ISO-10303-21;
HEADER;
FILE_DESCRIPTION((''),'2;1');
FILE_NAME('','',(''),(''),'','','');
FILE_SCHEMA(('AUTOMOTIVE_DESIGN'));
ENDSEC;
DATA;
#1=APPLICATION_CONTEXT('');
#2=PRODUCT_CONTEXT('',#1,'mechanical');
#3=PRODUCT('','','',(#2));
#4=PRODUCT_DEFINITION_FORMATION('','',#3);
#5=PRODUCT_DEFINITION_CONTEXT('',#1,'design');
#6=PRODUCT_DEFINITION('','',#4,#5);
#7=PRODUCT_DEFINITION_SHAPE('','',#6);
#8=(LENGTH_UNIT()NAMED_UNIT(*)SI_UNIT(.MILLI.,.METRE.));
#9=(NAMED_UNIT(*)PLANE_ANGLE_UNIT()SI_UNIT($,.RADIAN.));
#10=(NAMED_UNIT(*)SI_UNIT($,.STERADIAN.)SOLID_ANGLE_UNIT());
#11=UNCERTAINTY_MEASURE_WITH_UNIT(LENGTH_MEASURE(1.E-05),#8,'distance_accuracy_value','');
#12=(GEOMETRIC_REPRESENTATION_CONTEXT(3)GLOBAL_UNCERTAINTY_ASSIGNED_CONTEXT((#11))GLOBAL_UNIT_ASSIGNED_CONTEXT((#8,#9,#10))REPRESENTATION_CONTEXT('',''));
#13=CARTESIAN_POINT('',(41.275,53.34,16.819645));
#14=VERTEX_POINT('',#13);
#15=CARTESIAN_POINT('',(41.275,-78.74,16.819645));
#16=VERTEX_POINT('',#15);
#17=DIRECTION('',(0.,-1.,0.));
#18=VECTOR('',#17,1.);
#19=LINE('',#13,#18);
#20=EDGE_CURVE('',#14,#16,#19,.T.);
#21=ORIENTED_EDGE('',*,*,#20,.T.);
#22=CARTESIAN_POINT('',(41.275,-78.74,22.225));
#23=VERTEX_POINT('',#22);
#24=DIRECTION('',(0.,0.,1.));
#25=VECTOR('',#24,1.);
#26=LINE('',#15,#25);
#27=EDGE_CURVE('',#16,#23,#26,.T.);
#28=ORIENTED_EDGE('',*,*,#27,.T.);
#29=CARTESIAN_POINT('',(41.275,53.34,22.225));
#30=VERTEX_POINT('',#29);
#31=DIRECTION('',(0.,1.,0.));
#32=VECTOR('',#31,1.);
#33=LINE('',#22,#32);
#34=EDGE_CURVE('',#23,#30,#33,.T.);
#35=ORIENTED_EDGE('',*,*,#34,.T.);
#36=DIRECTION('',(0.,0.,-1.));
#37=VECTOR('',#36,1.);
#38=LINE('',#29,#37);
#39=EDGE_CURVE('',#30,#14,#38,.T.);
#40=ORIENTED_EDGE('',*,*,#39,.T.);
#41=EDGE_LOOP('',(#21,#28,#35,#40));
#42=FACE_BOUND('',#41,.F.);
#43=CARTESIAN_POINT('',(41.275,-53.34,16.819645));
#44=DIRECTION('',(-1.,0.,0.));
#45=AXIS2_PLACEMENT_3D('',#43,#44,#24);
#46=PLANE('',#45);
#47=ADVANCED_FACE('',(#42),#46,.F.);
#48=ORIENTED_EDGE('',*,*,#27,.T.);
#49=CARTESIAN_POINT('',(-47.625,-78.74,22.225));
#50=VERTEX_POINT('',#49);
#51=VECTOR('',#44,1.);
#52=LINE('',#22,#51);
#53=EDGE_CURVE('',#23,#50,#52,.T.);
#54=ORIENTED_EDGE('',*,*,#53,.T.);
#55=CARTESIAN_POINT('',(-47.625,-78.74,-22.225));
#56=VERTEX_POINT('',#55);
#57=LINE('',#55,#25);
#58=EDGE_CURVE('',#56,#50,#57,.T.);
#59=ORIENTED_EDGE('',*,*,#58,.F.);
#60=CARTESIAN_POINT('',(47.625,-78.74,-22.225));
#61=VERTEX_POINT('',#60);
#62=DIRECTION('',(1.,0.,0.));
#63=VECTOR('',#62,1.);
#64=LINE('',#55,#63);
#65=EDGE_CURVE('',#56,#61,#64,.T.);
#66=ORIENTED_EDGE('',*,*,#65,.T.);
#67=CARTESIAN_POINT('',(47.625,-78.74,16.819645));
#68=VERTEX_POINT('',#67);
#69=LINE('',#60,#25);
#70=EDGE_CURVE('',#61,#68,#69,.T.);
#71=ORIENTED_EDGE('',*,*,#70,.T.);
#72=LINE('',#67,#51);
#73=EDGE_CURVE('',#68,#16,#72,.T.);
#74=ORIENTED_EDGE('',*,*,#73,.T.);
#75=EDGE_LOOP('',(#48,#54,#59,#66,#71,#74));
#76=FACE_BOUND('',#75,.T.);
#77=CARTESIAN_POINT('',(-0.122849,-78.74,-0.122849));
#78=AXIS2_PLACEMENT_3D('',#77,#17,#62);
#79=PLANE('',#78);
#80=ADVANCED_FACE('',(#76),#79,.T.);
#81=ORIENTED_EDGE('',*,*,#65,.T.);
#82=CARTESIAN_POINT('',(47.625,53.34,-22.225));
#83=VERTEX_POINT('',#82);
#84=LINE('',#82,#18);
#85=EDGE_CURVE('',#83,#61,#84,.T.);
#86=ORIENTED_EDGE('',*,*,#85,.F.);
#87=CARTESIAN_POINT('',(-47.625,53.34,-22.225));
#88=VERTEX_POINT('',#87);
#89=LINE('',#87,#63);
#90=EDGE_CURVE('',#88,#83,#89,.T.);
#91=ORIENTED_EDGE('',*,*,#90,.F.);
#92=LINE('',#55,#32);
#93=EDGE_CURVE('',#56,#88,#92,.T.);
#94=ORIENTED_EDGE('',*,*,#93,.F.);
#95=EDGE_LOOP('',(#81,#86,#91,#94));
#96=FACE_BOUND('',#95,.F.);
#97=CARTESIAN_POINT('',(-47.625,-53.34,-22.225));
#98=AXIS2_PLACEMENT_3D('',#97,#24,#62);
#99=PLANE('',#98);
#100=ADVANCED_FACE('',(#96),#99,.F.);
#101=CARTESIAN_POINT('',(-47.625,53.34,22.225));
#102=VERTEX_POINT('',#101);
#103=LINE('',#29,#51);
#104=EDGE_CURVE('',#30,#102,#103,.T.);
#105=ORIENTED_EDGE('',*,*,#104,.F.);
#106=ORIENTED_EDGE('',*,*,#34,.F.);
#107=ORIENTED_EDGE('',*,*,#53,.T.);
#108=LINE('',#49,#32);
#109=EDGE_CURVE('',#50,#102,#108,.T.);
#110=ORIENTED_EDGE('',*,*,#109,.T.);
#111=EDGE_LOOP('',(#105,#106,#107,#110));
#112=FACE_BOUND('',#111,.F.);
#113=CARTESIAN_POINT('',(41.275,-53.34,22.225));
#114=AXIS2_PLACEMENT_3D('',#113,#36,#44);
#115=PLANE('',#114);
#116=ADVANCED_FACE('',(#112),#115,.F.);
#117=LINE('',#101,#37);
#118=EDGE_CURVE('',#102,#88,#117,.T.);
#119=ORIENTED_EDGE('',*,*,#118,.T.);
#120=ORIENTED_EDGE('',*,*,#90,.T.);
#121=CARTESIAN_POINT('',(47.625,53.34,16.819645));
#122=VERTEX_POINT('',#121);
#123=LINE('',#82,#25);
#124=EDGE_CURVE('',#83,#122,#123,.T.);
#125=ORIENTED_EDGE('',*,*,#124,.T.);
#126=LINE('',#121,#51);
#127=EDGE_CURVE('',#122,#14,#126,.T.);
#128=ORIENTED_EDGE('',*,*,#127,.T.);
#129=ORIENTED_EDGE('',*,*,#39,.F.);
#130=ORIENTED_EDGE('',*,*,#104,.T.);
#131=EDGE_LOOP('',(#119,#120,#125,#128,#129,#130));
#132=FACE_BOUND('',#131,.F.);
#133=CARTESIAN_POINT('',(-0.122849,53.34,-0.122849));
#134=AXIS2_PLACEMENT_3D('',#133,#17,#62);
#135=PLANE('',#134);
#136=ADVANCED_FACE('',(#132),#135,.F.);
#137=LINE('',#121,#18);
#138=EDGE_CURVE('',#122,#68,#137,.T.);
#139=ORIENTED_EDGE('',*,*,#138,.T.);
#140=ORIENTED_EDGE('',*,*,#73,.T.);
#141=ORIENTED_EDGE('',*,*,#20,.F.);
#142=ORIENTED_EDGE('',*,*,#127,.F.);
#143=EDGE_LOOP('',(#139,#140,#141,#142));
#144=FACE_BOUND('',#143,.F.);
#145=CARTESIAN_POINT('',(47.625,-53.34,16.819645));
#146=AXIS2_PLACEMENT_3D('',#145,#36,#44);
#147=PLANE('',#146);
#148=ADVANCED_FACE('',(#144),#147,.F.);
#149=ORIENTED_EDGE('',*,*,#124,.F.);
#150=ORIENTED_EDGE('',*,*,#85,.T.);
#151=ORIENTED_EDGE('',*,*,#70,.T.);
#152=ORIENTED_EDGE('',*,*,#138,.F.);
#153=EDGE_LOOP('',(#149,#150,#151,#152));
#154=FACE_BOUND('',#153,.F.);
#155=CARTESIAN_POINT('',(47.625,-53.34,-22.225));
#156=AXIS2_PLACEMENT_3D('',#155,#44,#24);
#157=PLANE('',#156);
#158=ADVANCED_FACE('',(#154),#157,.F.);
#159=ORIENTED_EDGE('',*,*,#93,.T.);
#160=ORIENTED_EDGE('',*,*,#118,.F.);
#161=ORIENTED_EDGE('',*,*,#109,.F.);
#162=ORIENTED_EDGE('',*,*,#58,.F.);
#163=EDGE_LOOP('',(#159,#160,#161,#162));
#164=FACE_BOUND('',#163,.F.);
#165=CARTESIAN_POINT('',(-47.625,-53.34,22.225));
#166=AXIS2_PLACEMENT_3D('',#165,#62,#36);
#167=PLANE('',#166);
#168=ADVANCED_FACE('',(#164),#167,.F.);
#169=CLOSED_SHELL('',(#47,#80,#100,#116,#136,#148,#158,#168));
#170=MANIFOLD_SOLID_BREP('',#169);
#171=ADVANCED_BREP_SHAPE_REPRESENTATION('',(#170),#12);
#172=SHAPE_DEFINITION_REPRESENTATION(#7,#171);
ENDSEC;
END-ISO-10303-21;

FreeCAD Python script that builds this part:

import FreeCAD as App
import Part
import Sketcher
from FreeCAD import Vector
Q = App.Units.Quantity

doc = App.newDocument("Part")
body = doc.addObject("PartDesign::Body", "Body")

sketch1 = doc.addObject("Sketcher::SketchObject", "Sketch")
body.addObject(sketch1)
sketch1.AttachmentSupport = (doc.XZ_Plane, [""])
sketch1.MapMode = "FlatFace"
sketch1.addGeometry([
    Part.LineSegment(Vector(-47.625, -22.225, 0), Vector(47.625, -22.225, 0)),
    Part.LineSegment(Vector(47.625, -22.225, 0), Vector(47.625, 16.819645, 0)),
    Part.LineSegment(Vector(47.625, 16.819645, 0), Vector(41.275, 16.819645, 0)),
    Part.LineSegment(Vector(41.275, 16.819645, 0), Vector(41.275, 22.225, 0)),
    Part.LineSegment(Vector(41.275, 22.225, 0), Vector(-47.625, 22.225, 0)),
    Part.LineSegment(Vector(-47.625, 22.225, 0), Vector(-47.625, -22.225, 0)),
], False)
sketch1.addConstraint([
    Sketcher.Constraint("Coincident", 0, 2, 1, 1),
    Sketcher.Constraint("Coincident", 1, 2, 2, 1),
    Sketcher.Constraint("Coincident", 2, 2, 3, 1),
    Sketcher.Constraint("Coincident", 3, 2, 4, 1),
    Sketcher.Constraint("Coincident", 4, 2, 5, 1),
    Sketcher.Constraint("Coincident", 5, 2, 0, 1),
    Sketcher.Constraint("Horizontal", 0),
    Sketcher.Constraint("Vertical", 1),
    Sketcher.Constraint("Horizontal", 2),
    Sketcher.Constraint("Vertical", 3),
    Sketcher.Constraint("Horizontal", 4),
    Sketcher.Constraint("Vertical", 5),
    Sketcher.Constraint("Symmetric", 0, 2, 4, 2, -1, 1),
    Sketcher.Constraint("DistanceX", 4, 2, 4, 1, Q("3.5 in")),
    Sketcher.Constraint("DistanceX", 0, 1, 0, 2, Q("3.75 in")),
    Sketcher.Constraint("DistanceY", 5, 2, 5, 1, Q("1.75 in")),
    Sketcher.Constraint("DistanceY", 1, 1, 1, 2, Q("39.044645 mm")),
])
pad1 = doc.addObject("PartDesign::Pad", "Pad")
body.addObject(pad1)
pad1.Profile = sketch1
pad1.Length = Q("4.2 in")
pad1.Midplane = True

sketch2 = doc.addObject("Sketcher::SketchObject", "Sketch001")
body.addObject(sketch2)
sketch2.AttachmentSupport = (doc.XZ_Plane, [""])
sketch2.MapMode = "FlatFace"
sketch2.AttachmentOffset = App.Placement(Vector(0, 0, 2.1 * 25.4), App.Rotation())
sketch2.addGeometry([
    Part.LineSegment(Vector(-47.625, -22.225, 0), Vector(47.625, -22.225, 0)),
    Part.LineSegment(Vector(47.625, -22.225, 0), Vector(47.625, 16.819645, 0)),
    Part.LineSegment(Vector(47.625, 16.819645, 0), Vector(41.275, 16.819645, 0)),
    Part.LineSegment(Vector(41.275, 16.819645, 0), Vector(41.275, 22.225, 0)),
    Part.LineSegment(Vector(41.275, 22.225, 0), Vector(-47.625, 22.225, 0)),
    Part.LineSegment(Vector(-47.625, 22.225, 0), Vector(-47.625, -22.225, 0)),
], False)
sketch2.addConstraint([
    Sketcher.Constraint("Coincident", 0, 2, 1, 1),
    Sketcher.Constraint("Coincident", 1, 2, 2, 1),
    Sketcher.Constraint("Coincident", 2, 2, 3, 1),
    Sketcher.Constraint("Coincident", 3, 2, 4, 1),
    Sketcher.Constraint("Coincident", 4, 2, 5, 1),
    Sketcher.Constraint("Coincident", 5, 2, 0, 1),
    Sketcher.Constraint("Horizontal", 0),
    Sketcher.Constraint("Vertical", 1),
    Sketcher.Constraint("Horizontal", 2),
    Sketcher.Constraint("Vertical", 3),
    Sketcher.Constraint("Horizontal", 4),
    Sketcher.Constraint("Vertical", 5),
    Sketcher.Constraint("Symmetric", 0, 2, 4, 2, -1, 1),
    Sketcher.Constraint("DistanceX", 4, 2, 4, 1, Q("3.5 in")),
    Sketcher.Constraint("DistanceX", 0, 1, 0, 2, Q("3.75 in")),
    Sketcher.Constraint("DistanceY", 5, 2, 5, 1, Q("1.75 in")),
    Sketcher.Constraint("DistanceY", 1, 1, 1, 2, Q("39.044645 mm")),
])
pad2 = doc.addObject("PartDesign::Pad", "Pad001")
body.addObject(pad2)
pad2.Profile = sketch2
pad2.Length = Q("1 in")

sketch3 = doc.addObject("Sketcher::SketchObject", "Sketch002")
body.addObject(sketch3)
sketch3.AttachmentSupport = (doc.XY_Plane, [""])
sketch3.MapMode = "FlatFace"
sketch3.AttachmentOffset = App.Placement(Vector(0, 0, 0.875 * 25.4), App.Rotation())
sketch3.addGeometry([
    Part.LineSegment(Vector(-47.625, 53.34, 0), Vector(-47.625, -78.74, 0)),
    Part.LineSegment(Vector(-47.625, -78.74, 0), Vector(41.275, -78.74, 0)),
    Part.LineSegment(Vector(41.275, -78.74, 0), Vector(41.275, 53.34, 0)),
    Part.LineSegment(Vector(41.275, 53.34, 0), Vector(-47.625, 53.34, 0)),
], False)
sketch3.addConstraint([
    Sketcher.Constraint("Coincident", 0, 2, 1, 1),
    Sketcher.Constraint("Coincident", 1, 2, 2, 1),
    Sketcher.Constraint("Coincident", 2, 2, 3, 1),
    Sketcher.Constraint("Coincident", 3, 2, 0, 1),
    Sketcher.Constraint("Vertical", 0),
    Sketcher.Constraint("Horizontal", 1),
    Sketcher.Constraint("Vertical", 2),
    Sketcher.Constraint("Horizontal", 3),
    Sketcher.Constraint("DistanceX", 1, 1, 1, 2, Q("3.5 in")),
    Sketcher.Constraint("DistanceY", 0, 2, 0, 1, Q("5.2 in")),
    Sketcher.Constraint("DistanceY", 0, 2, -1, 1, Q("3.1 in")),
    Sketcher.Constraint("DistanceX", 0, 2, -1, 1, Q("1.875 in")),
])
pad3 = doc.addObject("PartDesign::Pad", "Pad002")
body.addObject(pad3)
pad3.Profile = sketch3
pad3.Length = Q("0.12 in")
pad3.Reversed = True

doc.recompute()
